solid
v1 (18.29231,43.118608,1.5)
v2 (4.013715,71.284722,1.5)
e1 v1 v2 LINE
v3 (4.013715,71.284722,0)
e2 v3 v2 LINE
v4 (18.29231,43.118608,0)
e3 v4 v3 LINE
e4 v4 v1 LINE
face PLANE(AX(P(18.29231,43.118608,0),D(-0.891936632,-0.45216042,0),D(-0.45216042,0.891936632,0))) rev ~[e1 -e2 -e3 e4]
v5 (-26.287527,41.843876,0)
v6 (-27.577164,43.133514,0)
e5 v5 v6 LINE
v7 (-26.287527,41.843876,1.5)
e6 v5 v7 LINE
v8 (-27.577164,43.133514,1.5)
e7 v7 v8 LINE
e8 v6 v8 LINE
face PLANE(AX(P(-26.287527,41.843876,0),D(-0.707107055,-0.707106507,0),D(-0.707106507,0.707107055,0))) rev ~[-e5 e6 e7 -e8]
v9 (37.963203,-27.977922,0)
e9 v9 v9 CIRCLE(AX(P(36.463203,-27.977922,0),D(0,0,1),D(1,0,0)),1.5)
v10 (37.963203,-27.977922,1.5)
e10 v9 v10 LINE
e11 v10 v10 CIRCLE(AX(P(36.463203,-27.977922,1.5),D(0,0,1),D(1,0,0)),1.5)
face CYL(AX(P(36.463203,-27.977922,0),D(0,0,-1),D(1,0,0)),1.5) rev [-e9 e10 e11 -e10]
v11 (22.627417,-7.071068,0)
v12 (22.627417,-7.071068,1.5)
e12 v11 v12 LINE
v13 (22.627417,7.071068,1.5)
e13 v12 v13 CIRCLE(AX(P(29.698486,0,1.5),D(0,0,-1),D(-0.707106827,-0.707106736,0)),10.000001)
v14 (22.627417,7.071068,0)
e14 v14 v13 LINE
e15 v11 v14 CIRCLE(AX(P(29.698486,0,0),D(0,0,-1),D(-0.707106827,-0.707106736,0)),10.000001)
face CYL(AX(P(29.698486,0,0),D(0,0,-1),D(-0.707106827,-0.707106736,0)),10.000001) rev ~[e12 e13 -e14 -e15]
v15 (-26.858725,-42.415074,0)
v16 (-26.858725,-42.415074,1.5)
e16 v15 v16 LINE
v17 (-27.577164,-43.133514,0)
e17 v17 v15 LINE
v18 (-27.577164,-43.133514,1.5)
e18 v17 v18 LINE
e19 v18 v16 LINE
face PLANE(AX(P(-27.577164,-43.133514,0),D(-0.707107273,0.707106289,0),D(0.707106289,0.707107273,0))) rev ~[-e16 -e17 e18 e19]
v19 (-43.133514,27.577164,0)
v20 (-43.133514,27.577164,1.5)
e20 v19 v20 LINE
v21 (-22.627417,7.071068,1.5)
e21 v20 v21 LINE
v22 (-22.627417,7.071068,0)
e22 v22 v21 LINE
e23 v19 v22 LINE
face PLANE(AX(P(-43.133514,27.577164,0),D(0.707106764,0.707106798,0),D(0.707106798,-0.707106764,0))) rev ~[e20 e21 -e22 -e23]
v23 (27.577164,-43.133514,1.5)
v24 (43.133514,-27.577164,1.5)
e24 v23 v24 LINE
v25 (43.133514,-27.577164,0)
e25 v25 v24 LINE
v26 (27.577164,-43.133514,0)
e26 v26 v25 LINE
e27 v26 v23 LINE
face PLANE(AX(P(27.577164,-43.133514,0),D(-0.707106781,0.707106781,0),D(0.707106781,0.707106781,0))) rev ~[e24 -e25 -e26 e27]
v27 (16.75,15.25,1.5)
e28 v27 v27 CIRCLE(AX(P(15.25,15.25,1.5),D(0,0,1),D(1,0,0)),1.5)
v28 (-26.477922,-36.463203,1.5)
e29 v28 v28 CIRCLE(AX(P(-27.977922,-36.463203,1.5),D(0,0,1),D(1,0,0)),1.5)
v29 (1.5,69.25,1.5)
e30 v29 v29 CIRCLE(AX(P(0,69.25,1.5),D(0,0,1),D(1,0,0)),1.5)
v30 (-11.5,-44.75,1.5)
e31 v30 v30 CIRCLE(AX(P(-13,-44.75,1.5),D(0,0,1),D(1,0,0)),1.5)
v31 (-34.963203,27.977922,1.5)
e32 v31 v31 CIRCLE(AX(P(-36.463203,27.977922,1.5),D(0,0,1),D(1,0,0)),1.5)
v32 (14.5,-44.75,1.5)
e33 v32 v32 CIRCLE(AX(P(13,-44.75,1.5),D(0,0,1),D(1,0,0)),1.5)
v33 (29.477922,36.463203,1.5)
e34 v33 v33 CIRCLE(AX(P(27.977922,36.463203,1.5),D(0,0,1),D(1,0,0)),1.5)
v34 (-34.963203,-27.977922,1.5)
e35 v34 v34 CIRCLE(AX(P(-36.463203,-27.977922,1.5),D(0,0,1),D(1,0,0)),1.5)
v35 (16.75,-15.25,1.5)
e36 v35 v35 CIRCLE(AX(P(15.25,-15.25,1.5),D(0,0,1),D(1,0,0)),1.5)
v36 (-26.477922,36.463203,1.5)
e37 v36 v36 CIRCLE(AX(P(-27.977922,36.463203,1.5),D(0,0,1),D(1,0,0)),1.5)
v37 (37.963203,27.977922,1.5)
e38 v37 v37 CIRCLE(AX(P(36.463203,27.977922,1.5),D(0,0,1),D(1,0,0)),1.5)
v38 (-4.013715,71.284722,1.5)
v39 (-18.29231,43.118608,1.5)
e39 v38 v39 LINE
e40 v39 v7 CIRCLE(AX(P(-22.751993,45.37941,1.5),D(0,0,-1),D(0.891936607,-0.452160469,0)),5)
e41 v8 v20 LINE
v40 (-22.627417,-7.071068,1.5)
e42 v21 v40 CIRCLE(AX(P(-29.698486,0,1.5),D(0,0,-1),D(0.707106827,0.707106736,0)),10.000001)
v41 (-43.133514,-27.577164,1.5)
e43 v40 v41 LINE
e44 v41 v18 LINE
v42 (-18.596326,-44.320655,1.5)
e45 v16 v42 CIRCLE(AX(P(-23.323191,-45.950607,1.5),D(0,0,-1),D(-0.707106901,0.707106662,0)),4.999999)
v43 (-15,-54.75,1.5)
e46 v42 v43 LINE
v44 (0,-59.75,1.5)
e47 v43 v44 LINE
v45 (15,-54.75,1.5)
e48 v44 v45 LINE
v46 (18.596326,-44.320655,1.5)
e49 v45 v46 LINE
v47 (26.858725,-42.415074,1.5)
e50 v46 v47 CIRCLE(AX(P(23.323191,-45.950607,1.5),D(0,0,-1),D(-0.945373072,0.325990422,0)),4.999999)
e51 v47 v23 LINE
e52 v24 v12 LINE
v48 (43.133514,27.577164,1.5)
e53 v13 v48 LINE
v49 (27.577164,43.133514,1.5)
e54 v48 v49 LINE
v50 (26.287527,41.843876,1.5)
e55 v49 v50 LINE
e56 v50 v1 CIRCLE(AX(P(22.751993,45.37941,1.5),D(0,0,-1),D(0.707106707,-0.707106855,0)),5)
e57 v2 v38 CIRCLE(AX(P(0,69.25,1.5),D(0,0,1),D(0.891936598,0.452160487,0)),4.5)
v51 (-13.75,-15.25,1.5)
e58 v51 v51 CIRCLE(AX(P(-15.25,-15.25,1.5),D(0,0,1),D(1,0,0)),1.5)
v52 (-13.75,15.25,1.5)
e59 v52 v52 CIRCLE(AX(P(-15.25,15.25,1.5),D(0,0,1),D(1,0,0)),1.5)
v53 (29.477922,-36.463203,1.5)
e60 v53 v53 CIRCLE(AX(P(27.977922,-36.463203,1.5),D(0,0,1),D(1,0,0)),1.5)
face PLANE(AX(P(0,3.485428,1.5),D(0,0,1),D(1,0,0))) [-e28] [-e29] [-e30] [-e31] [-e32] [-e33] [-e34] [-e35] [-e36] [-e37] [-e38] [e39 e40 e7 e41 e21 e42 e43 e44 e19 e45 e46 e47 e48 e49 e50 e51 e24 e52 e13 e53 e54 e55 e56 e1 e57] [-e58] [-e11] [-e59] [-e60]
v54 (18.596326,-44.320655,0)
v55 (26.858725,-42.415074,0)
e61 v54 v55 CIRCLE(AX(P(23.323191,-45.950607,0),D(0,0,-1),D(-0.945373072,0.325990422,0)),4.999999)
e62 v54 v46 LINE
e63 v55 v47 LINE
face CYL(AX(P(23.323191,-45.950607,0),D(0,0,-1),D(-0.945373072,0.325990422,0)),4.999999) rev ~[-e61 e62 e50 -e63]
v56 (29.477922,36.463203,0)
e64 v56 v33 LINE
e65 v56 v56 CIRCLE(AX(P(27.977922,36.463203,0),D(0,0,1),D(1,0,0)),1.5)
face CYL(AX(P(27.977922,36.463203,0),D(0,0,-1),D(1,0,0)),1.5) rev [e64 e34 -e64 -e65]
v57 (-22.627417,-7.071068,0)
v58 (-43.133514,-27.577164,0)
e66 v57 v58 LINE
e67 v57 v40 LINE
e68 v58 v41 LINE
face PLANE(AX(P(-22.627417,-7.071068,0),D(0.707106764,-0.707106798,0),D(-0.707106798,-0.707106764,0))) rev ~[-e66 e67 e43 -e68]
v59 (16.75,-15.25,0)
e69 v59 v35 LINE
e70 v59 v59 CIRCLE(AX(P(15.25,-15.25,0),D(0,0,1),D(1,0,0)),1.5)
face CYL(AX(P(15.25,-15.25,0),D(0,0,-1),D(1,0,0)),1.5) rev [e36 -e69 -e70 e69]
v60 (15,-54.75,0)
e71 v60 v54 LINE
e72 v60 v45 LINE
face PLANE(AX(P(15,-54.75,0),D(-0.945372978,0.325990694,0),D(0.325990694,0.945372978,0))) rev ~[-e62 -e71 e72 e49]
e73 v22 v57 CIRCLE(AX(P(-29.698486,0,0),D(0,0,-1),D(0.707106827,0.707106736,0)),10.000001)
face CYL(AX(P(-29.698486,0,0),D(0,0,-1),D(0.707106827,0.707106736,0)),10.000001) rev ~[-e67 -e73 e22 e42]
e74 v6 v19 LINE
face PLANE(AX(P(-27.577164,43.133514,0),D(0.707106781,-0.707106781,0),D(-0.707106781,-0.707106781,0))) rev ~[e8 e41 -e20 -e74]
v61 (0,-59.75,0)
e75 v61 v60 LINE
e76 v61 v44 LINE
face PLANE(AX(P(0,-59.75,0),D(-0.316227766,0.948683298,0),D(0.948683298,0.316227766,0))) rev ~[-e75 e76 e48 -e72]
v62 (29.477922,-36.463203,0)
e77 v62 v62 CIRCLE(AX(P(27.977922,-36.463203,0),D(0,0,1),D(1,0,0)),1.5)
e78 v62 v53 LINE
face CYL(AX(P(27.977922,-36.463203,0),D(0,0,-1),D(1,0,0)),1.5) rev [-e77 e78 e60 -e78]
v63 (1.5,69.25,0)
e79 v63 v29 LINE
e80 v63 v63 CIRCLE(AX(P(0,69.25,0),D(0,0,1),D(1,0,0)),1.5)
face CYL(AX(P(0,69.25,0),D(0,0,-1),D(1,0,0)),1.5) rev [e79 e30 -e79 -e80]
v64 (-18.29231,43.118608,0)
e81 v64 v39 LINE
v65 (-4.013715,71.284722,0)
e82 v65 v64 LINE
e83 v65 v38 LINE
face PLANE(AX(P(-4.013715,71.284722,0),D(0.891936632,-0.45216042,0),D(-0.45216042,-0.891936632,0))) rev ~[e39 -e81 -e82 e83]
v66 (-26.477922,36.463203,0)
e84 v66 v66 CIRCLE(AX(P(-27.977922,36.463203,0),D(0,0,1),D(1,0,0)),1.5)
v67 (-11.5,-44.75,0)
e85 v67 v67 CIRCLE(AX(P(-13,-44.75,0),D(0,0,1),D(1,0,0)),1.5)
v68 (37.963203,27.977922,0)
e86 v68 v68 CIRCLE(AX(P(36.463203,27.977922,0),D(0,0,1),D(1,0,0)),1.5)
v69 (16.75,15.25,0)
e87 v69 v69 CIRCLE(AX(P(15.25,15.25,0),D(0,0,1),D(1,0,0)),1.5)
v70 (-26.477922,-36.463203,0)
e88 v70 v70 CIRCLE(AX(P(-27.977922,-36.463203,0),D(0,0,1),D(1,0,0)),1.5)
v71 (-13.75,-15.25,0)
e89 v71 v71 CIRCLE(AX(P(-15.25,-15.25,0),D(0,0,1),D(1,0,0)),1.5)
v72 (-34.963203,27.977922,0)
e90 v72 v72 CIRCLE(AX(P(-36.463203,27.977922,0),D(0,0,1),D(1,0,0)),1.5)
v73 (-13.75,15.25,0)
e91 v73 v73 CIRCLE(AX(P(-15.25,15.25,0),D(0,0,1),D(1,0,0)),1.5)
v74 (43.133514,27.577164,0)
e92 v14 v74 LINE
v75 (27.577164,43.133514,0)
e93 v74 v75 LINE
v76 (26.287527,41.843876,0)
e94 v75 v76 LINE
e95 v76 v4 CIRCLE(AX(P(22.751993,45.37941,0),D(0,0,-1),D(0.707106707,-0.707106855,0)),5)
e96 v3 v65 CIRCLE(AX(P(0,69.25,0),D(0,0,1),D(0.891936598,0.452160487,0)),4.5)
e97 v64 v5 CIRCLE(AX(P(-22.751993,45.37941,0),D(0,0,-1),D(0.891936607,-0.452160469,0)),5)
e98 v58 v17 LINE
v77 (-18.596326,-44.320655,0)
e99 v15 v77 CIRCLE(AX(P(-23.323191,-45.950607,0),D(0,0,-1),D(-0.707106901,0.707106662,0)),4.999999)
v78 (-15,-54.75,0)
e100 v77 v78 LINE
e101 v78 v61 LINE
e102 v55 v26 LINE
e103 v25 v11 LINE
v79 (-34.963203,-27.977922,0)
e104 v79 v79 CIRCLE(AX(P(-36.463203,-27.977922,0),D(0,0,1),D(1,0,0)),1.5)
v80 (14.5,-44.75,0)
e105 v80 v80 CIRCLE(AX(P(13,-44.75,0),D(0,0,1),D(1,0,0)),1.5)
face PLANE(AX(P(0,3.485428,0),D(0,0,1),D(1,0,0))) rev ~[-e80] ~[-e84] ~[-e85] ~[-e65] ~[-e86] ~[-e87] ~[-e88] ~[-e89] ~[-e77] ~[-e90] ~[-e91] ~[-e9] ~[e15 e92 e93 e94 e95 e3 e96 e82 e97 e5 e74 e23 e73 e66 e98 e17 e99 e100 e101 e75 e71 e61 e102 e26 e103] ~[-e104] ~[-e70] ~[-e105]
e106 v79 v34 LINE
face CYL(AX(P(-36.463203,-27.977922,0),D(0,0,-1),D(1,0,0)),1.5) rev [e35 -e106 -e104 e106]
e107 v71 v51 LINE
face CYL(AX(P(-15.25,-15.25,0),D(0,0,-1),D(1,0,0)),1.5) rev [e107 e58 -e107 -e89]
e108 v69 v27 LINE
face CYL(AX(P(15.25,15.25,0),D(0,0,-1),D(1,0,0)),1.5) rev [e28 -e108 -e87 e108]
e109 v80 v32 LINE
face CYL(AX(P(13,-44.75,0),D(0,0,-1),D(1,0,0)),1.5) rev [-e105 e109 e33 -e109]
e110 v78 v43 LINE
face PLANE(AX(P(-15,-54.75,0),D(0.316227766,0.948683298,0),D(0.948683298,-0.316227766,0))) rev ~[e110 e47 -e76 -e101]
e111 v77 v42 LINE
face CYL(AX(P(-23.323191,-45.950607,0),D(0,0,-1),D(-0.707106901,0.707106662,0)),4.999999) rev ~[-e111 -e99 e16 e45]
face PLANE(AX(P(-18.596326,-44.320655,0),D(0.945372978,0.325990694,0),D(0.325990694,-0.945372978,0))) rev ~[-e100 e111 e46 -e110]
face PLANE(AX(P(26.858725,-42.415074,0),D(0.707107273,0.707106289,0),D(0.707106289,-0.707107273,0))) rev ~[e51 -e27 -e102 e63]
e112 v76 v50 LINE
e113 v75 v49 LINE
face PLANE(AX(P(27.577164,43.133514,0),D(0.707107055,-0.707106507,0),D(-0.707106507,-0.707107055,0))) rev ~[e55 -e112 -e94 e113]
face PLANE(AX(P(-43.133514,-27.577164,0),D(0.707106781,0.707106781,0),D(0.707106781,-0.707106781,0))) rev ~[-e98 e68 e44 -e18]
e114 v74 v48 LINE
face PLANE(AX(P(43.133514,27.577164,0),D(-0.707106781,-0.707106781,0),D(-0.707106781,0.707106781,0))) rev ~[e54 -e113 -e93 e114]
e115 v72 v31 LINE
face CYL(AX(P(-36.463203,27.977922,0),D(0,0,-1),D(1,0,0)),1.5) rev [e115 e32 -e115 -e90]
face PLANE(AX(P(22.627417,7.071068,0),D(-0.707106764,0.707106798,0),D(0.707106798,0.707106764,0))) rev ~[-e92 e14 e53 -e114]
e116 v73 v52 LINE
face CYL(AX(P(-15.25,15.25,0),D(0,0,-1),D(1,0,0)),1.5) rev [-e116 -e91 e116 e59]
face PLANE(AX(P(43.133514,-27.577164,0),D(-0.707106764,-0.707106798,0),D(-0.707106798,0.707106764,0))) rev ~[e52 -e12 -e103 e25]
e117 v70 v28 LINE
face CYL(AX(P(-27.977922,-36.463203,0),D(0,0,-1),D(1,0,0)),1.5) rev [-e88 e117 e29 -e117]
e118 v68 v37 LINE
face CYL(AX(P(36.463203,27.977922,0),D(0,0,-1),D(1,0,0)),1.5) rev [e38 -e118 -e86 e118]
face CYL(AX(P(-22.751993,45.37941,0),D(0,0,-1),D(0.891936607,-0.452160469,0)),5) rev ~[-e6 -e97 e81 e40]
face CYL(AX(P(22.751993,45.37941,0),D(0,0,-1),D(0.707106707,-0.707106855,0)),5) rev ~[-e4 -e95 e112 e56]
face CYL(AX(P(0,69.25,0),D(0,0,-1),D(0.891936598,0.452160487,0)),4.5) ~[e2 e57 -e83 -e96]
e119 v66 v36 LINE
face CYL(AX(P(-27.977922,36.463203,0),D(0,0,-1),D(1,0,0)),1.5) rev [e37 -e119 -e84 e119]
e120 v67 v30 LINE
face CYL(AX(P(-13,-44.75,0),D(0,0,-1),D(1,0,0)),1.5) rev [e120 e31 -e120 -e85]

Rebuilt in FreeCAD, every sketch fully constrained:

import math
import FreeCAD as App
import Part
import Sketcher
Q = App.Units.Quantity

doc = App.newDocument("Part")
body = doc.addObject("PartDesign::Body", "Body")

# Sketch on XY plane
sketch1 = body.newObject("Sketcher::SketchObject", "Sketch")
sketch1.AttachmentSupport = (doc.getObject("XY_Plane"), [""])
sketch1.MapMode = "FlatFace"
sketch1.addGeometry([
    Part.LineSegment(App.Vector(-27.6, 43.1, 0), App.Vector(-43.1, 27.6, 0)),  # 0
    Part.LineSegment(App.Vector(-43.1, 27.6, 0), App.Vector(-22.6, 7.1, 0)),  # 1
    Part.ArcOfCircle(Part.Circle(App.Vector(-29.7, 0, 0), App.Vector(0, 0, 1), 10), math.radians(-45), math.radians(45)),  # 2
    Part.LineSegment(App.Vector(-22.6, -7.1, 0), App.Vector(-43.1, -27.6, 0)),  # 3
    Part.LineSegment(App.Vector(-43.1, -27.6, 0), App.Vector(-27.6, -43.1, 0)),  # 4
    Part.LineSegment(App.Vector(-27.6, -43.1, 0), App.Vector(-26.9, -42.4, 0)),  # 5
    Part.ArcOfCircle(Part.Circle(App.Vector(-23.3, -46, 0), App.Vector(0, 0, 1), 5), math.radians(19), math.radians(135)),  # 6
    Part.LineSegment(App.Vector(-18.6, -44.3, 0), App.Vector(-15, -54.8, 0)),  # 7
    Part.LineSegment(App.Vector(-15, -54.8, 0), App.Vector(0, -59.8, 0)),  # 8
    Part.LineSegment(App.Vector(0, -59.8, 0), App.Vector(15, -54.8, 0)),  # 9
    Part.LineSegment(App.Vector(15, -54.8, 0), App.Vector(18.6, -44.3, 0)),  # 10
    Part.ArcOfCircle(Part.Circle(App.Vector(23.3, -46, 0), App.Vector(0, 0, 1), 5), math.radians(45), math.radians(161)),  # 11
    Part.LineSegment(App.Vector(26.9, -42.4, 0), App.Vector(27.6, -43.1, 0)),  # 12
    Part.LineSegment(App.Vector(27.6, -43.1, 0), App.Vector(43.1, -27.6, 0)),  # 13
    Part.LineSegment(App.Vector(43.1, -27.6, 0), App.Vector(22.6, -7.1, 0)),  # 14
    Part.ArcOfCircle(Part.Circle(App.Vector(29.7, 0, 0), App.Vector(0, 0, 1), 10), math.radians(135), math.radians(225)),  # 15
    Part.LineSegment(App.Vector(22.6, 7.1, 0), App.Vector(43.1, 27.6, 0)),  # 16
    Part.LineSegment(App.Vector(43.1, 27.6, 0), App.Vector(27.6, 43.1, 0)),  # 17
    Part.LineSegment(App.Vector(27.6, 43.1, 0), App.Vector(26.3, 41.8, 0)),  # 18
    Part.ArcOfCircle(Part.Circle(App.Vector(22.8, 45.4, 0), App.Vector(0, 0, 1), 5), math.radians(-153), math.radians(-45)),  # 19
    Part.LineSegment(App.Vector(18.3, 43.1, 0), App.Vector(4, 71.3, 0)),  # 20
    Part.ArcOfCircle(Part.Circle(App.Vector(0, 69.2, 0), App.Vector(0, 0, 1), 4.5), math.radians(27), math.radians(153)),  # 21
    Part.LineSegment(App.Vector(-4, 71.3, 0), App.Vector(-18.3, 43.1, 0)),  # 22
    Part.ArcOfCircle(Part.Circle(App.Vector(-22.8, 45.4, 0), App.Vector(0, 0, 1), 5), math.radians(-135), math.radians(-27)),  # 23
    Part.LineSegment(App.Vector(-26.3, 41.8, 0), App.Vector(-27.6, 43.1, 0)),  # 24
    Part.Circle(App.Vector(-28, -36.5, 0), App.Vector(0, 0, 1), 1.5),  # 25
    Part.Circle(App.Vector(-36.5, -28, 0), App.Vector(0, 0, 1), 1.5),  # 26
    Part.Circle(App.Vector(-13, -44.8, 0), App.Vector(0, 0, 1), 1.5),  # 27
    Part.Circle(App.Vector(-15.2, -15.2, 0), App.Vector(0, 0, 1), 1.5),  # 28
    Part.Circle(App.Vector(13, -44.8, 0), App.Vector(0, 0, 1), 1.5),  # 29
    Part.Circle(App.Vector(28, -36.5, 0), App.Vector(0, 0, 1), 1.5),  # 30
    Part.Circle(App.Vector(36.5, -28, 0), App.Vector(0, 0, 1), 1.5),  # 31
    Part.Circle(App.Vector(15.2, -15.2, 0), App.Vector(0, 0, 1), 1.5),  # 32
    Part.Circle(App.Vector(-36.5, 28, 0), App.Vector(0, 0, 1), 1.5),  # 33
    Part.Circle(App.Vector(-28, 36.5, 0), App.Vector(0, 0, 1), 1.5),  # 34
    Part.Circle(App.Vector(-15.2, 15.2, 0), App.Vector(0, 0, 1), 1.5),  # 35
    Part.Circle(App.Vector(15.2, 15.2, 0), App.Vector(0, 0, 1), 1.5),  # 36
    Part.Circle(App.Vector(28, 36.5, 0), App.Vector(0, 0, 1), 1.5),  # 37
    Part.Circle(App.Vector(36.5, 28, 0), App.Vector(0, 0, 1), 1.5),  # 38
    Part.Circle(App.Vector(0, 69.2, 0), App.Vector(0, 0, 1), 1.5),  # 39
], False)
sketch1.addConstraint([
    Sketcher.Constraint("Coincident", 0, 2, 1, 1),
    Sketcher.Constraint("Tangent", 1, 2, 2, 2),
    Sketcher.Constraint("Tangent", 2, 1, 3, 1),
    Sketcher.Constraint("Coincident", 3, 2, 4, 1),
    Sketcher.Constraint("Coincident", 4, 2, 5, 1),
    Sketcher.Constraint("Tangent", 5, 2, 6, 2),
    Sketcher.Constraint("Tangent", 6, 1, 7, 1),
    Sketcher.Constraint("Coincident", 7, 2, 8, 1),
    Sketcher.Constraint("Coincident", 8, 2, 9, 1),
    Sketcher.Constraint("Coincident", 9, 2, 10, 1),
    Sketcher.Constraint("Tangent", 10, 2, 11, 2),
    Sketcher.Constraint("Tangent", 11, 1, 12, 1),
    Sketcher.Constraint("Coincident", 12, 2, 13, 1),
    Sketcher.Constraint("Coincident", 13, 2, 14, 1),
    Sketcher.Constraint("Tangent", 14, 2, 15, 2),
    Sketcher.Constraint("Tangent", 15, 1, 16, 1),
    Sketcher.Constraint("Coincident", 16, 2, 17, 1),
    Sketcher.Constraint("Coincident", 17, 2, 18, 1),
    Sketcher.Constraint("Tangent", 18, 2, 19, 2),
    Sketcher.Constraint("Tangent", 19, 1, 20, 1),
    Sketcher.Constraint("Tangent", 20, 2, 21, 1),
    Sketcher.Constraint("Tangent", 21, 2, 22, 1),
    Sketcher.Constraint("Tangent", 22, 2, 23, 2),
    Sketcher.Constraint("Tangent", 23, 1, 24, 1),
    Sketcher.Constraint("Coincident", 24, 2, 0, 1),
    Sketcher.Constraint("Coincident", 39, 3, 21, 3),
    Sketcher.Constraint("Equal", 6, 11),
    Sketcher.Constraint("Equal", 2, 15),
    Sketcher.Constraint("Equal", 11, 19),
    Sketcher.Constraint("Equal", 19, 23),
    Sketcher.Constraint("Equal", 25, 26),
    Sketcher.Constraint("Equal", 26, 27),
    Sketcher.Constraint("Equal", 27, 28),
    Sketcher.Constraint("Equal", 28, 29),
    Sketcher.Constraint("Equal", 29, 30),
    Sketcher.Constraint("Equal", 30, 31),
    Sketcher.Constraint("Equal", 31, 32),
    Sketcher.Constraint("Equal", 32, 33),
    Sketcher.Constraint("Equal", 33, 34),
    Sketcher.Constraint("Equal", 34, 35),
    Sketcher.Constraint("Equal", 35, 36),
    Sketcher.Constraint("Equal", 36, 37),
    Sketcher.Constraint("Equal", 37, 38),
    Sketcher.Constraint("Equal", 38, 39),
    Sketcher.Constraint("Symmetric", 2, 3, 15, 3, -1, 1),
    Sketcher.Constraint("Symmetric", 31, 3, 33, 3, -1, 1),
    Sketcher.Constraint("Symmetric", 30, 3, 34, 3, -1, 1),
    Sketcher.Constraint("Symmetric", 32, 3, 35, 3, -1, 1),
    Sketcher.Constraint("Symmetric", 28, 3, 36, 3, -1, 1),
    Sketcher.Constraint("Symmetric", 25, 3, 37, 3, -1, 1),
    Sketcher.Constraint("Symmetric", 26, 3, 38, 3, -1, 1),
    Sketcher.Constraint("Symmetric", 0, 2, 13, 2, -1, 1),
    Sketcher.Constraint("Symmetric", 3, 2, 16, 2, -1, 1),
    Sketcher.Constraint("Symmetric", 4, 2, 17, 2, -1, 1),
    Sketcher.Constraint("Symmetric", 12, 2, 24, 2, -1, 1),
    Sketcher.Constraint("Symmetric", 6, 3, 11, 3, -2),
    Sketcher.Constraint("Symmetric", 19, 3, 23, 3, -2),
    Sketcher.Constraint("Symmetric", 27, 3, 29, 3, -2),
    Sketcher.Constraint("Symmetric", 25, 3, 30, 3, -2),
    Sketcher.Constraint("Symmetric", 26, 3, 31, 3, -2),
    Sketcher.Constraint("Symmetric", 28, 3, 32, 3, -2),
    Sketcher.Constraint("Symmetric", 7, 2, 9, 2, -2),
    Sketcher.Constraint("Symmetric", 4, 2, 12, 2, -2),
    Sketcher.Constraint("Symmetric", 3, 2, 13, 2, -2),
    Sketcher.Constraint("PointOnObject", 2, 3, -1),
    Sketcher.Constraint("PointOnObject", 21, 3, -2),
    Sketcher.Constraint("PointOnObject", 8, 2, -2),
    Sketcher.Constraint("Perpendicular", 0, 1),
    Sketcher.Constraint("Perpendicular", 1, 3),
    Sketcher.Constraint("Perpendicular", 4, 5),
    Sketcher.Constraint("Perpendicular", 17, 18),
    Sketcher.Constraint("Diameter", 25, Q("3 mm")),
    Sketcher.Constraint("Radius", 2, Q("10.000001 mm")),
    Sketcher.Constraint("Radius", 6, Q("4.999999 mm")),
    Sketcher.Constraint("Radius", 21, Q("4.5 mm")),
    Sketcher.Constraint("Distance", 0, Q("22.000001 mm")),
    Sketcher.Constraint("Distance", 1, Q("29 mm")),
    Sketcher.Constraint("DistanceX", 27, 3, -1, 1, Q("13 mm")),
    Sketcher.Constraint("DistanceX", 7, 2, -1, 1, Q("15 mm")),
    Sketcher.Constraint("DistanceY", 7, 2, 27, 3, Q("10 mm")),
    Sketcher.Constraint("DistanceY", 8, 2, 7, 2, Q("5 mm")),
    Sketcher.Constraint("DistanceY", 27, 3, 28, 3, Q("29.5 mm")),
    Sketcher.Constraint("DistanceX", 28, 3, 32, 3, Q("30.5 mm")),
    Sketcher.Constraint("DistanceY", 28, 3, 35, 3, Q("30.5 mm")),
    Sketcher.Constraint("DistanceY", -1, 1, 21, 3, Q("69.25 mm")),
    Sketcher.Constraint("DistanceX", 5, 2, 6, 1, Q("8.262399 mm")),
    Sketcher.Constraint("Distance", 7, Q("11.03199 mm")),
    Sketcher.Constraint("DistanceY", -1, 1, 19, 3, Q("45.37941 mm")),
    Sketcher.Constraint("DistanceX", 25, 3, -1, 1, Q("27.977922 mm")),
    Sketcher.Constraint("DistanceY", 26, 3, -1, 1, Q("27.977922 mm")),
    Sketcher.Constraint("DistanceX", 26, 3, 25, 3, Q("8.485281 mm")),
    Sketcher.Constraint("DistanceY", 25, 3, 26, 3, Q("8.485281 mm")),
])
pad1 = body.newObject("PartDesign::Pad", "Pad")
pad1.Profile = sketch1
pad1.Length = 1.5

doc.recompute()
